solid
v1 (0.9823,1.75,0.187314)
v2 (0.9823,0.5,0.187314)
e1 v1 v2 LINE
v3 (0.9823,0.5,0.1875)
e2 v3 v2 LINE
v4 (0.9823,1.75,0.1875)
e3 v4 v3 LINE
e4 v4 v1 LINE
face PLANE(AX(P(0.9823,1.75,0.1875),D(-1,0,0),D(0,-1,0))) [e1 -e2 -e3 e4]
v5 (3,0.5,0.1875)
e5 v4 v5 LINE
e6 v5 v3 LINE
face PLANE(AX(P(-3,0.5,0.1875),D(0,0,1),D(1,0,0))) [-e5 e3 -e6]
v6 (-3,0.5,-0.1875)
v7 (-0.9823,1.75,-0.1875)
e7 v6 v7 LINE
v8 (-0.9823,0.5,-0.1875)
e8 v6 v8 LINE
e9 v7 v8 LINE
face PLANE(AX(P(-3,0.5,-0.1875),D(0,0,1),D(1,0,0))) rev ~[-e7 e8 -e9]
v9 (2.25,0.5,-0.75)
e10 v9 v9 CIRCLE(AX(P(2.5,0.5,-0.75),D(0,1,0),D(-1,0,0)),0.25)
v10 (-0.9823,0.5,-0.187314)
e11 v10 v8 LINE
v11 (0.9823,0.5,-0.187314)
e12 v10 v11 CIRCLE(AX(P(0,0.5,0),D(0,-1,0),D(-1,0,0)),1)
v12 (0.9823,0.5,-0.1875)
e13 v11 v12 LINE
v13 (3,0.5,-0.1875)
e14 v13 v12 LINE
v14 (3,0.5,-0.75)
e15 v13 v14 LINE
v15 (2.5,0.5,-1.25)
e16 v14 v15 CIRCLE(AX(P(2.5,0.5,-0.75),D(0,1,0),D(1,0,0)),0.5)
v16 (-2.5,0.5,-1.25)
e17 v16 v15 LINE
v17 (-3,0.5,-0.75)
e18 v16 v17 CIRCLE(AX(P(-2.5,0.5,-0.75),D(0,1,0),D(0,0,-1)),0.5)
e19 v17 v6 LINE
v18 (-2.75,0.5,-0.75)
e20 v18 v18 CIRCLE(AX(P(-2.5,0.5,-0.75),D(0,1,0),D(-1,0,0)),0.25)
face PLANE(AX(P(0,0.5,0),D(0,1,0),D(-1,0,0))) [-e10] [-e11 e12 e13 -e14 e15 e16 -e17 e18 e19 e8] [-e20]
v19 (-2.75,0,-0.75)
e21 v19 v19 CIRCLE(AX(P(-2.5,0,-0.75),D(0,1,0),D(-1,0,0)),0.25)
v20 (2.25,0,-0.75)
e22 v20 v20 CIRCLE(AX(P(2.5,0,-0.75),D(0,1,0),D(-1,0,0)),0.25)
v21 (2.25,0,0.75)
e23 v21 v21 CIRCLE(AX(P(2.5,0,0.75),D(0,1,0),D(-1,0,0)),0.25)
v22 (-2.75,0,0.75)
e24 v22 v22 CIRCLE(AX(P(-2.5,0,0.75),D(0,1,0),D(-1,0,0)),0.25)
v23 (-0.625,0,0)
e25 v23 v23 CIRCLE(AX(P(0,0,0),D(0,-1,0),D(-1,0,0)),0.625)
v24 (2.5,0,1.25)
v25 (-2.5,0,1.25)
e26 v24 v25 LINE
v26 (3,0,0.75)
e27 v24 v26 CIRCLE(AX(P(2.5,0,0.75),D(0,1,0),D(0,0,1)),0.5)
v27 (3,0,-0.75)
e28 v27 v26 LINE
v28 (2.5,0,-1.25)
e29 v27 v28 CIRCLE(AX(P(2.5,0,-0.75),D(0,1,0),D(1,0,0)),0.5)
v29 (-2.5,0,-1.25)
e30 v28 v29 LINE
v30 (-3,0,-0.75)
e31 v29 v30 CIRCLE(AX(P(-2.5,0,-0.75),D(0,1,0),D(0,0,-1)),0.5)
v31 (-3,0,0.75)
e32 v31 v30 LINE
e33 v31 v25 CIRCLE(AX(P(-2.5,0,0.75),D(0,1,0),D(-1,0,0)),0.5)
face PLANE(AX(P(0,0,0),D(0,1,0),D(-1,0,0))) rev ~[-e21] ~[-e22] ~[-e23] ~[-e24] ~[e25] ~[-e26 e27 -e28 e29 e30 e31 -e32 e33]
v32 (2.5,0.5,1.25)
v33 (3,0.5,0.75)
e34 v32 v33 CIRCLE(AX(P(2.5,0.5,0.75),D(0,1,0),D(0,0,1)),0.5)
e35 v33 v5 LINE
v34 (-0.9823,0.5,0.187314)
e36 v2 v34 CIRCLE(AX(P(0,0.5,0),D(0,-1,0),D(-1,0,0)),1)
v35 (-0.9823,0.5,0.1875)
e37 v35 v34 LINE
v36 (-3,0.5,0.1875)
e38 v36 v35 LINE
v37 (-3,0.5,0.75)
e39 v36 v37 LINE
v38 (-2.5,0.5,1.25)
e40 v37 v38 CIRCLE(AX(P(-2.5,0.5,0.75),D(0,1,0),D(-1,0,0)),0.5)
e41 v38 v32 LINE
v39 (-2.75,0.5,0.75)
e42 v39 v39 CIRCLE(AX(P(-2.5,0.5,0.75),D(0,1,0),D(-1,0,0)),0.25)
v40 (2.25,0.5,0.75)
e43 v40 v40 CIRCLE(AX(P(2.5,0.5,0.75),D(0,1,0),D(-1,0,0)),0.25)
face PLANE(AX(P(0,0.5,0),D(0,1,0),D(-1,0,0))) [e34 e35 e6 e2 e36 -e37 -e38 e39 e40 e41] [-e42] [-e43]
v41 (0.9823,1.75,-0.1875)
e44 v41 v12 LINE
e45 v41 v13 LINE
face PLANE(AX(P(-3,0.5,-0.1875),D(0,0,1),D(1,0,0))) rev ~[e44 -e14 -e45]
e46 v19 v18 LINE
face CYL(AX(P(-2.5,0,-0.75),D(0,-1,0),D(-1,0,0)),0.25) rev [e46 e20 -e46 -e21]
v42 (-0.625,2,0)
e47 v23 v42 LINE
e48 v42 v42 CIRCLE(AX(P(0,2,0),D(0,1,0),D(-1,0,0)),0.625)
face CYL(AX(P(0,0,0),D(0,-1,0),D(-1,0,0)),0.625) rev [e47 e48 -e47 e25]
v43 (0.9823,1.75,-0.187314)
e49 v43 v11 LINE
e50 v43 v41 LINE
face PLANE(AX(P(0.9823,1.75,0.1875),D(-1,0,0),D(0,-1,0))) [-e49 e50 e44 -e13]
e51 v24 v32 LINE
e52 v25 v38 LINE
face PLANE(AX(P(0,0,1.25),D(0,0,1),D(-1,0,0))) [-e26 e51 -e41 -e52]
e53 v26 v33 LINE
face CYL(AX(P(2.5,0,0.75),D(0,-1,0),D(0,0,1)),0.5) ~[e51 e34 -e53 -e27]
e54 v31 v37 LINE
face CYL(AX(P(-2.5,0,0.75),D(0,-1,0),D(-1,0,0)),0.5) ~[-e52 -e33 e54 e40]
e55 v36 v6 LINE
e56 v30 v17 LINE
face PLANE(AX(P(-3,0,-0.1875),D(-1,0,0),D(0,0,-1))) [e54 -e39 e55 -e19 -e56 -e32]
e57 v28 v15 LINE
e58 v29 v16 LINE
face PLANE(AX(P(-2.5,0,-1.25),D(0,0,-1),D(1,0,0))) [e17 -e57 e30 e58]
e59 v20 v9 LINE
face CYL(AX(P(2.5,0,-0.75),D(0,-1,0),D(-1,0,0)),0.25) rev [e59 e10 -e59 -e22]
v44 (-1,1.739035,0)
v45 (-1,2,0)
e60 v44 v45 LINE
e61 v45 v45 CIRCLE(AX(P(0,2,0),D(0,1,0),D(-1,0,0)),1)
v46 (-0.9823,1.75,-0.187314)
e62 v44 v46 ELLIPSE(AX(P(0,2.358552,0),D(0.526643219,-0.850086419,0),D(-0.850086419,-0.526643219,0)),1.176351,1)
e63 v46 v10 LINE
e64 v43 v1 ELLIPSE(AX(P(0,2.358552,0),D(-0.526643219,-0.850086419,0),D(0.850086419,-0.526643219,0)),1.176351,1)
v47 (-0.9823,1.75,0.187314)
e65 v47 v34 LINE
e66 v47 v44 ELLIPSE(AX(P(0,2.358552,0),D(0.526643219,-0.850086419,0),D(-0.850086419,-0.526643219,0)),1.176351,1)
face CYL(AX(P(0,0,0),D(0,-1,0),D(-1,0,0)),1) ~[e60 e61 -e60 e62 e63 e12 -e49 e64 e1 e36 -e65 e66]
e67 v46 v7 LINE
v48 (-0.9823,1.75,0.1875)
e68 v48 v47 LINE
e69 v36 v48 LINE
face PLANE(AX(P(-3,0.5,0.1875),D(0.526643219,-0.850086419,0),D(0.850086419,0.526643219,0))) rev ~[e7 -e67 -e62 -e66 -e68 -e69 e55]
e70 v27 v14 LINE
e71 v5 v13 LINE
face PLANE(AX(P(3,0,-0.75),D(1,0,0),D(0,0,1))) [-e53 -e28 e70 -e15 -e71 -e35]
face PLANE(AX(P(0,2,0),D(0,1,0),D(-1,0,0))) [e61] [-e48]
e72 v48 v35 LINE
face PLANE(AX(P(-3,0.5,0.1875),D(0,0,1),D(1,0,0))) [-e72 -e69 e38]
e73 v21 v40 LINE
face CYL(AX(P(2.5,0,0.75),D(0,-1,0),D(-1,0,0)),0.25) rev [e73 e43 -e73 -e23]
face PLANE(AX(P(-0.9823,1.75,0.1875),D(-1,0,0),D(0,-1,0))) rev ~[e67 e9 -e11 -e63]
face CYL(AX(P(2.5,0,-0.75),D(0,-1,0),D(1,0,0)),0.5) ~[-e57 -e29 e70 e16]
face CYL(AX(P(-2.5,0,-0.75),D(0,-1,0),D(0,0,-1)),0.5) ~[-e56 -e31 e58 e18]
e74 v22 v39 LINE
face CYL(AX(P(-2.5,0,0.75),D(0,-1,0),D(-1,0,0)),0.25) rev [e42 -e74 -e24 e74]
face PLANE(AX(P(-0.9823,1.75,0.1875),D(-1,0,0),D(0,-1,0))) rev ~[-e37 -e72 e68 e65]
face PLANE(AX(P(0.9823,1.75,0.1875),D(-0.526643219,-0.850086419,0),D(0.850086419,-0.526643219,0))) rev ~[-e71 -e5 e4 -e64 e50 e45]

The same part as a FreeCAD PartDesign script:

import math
import FreeCAD as App
import Part
import Sketcher
Q = App.Units.Quantity


def add_polygon(sketch, points):
    """Adds a closed chain of lines whose ends are joined by coincident constraints."""
    first, n = sketch.GeometryCount, len(points)
    for a, b in zip(points, points[1:] + points[:1]):
        sketch.addGeometry(Part.LineSegment(App.Vector(*a, 0), App.Vector(*b, 0)), False)
    for i in range(n):
        sketch.addConstraint(Sketcher.Constraint("Coincident", first + i, 2, first + (i + 1) % n, 1))

doc = App.newDocument("Part")
body = doc.addObject("PartDesign::Body", "Body")

sketch1 = body.newObject("Sketcher::SketchObject", "Sketch")
sketch1.AttachmentSupport = (doc.getObject("XZ_Plane"), [""])
sketch1.MapMode = "FlatFace"
sketch1.addGeometry([
    Part.ArcOfCircle(Part.Circle(App.Vector(-2.5, -0.75, 0), App.Vector(0, 0, 1), 0.5), math.radians(180), math.radians(270)),
    Part.LineSegment(App.Vector(-3, -0.75, 0), App.Vector(-3, 0.75, 0)),
    Part.ArcOfCircle(Part.Circle(App.Vector(-2.5, 0.75, 0), App.Vector(0, 0, 1), 0.5), math.radians(90), math.radians(180)),
    Part.LineSegment(App.Vector(-2.5, 1.25, 0), App.Vector(2.5, 1.25, 0)),
    Part.ArcOfCircle(Part.Circle(App.Vector(2.5, 0.75, 0), App.Vector(0, 0, 1), 0.5), math.radians(0), math.radians(90)),
    Part.LineSegment(App.Vector(3, 0.75, 0), App.Vector(3, -0.75, 0)),
    Part.ArcOfCircle(Part.Circle(App.Vector(2.5, -0.75, 0), App.Vector(0, 0, 1), 0.5), math.radians(-90), math.radians(0)),
    Part.LineSegment(App.Vector(2.5, -1.25, 0), App.Vector(-2.5, -1.25, 0)),
    Part.Circle(App.Vector(0, 0, 0), App.Vector(0, 0, 1), 1),
    Part.Circle(App.Vector(-2.5, -0.75, 0), App.Vector(0, 0, 1), 0.25),
    Part.Circle(App.Vector(2.5, -0.75, 0), App.Vector(0, 0, 1), 0.25),
    Part.Circle(App.Vector(-2.5, 0.75, 0), App.Vector(0, 0, 1), 0.25),
    Part.Circle(App.Vector(2.5, 0.75, 0), App.Vector(0, 0, 1), 0.25),
], False)
sketch1.addConstraint([
    Sketcher.Constraint("Tangent", 0, 1, 1, 1),
    Sketcher.Constraint("Tangent", 1, 2, 2, 2),
    Sketcher.Constraint("Tangent", 2, 1, 3, 1),
    Sketcher.Constraint("Tangent", 3, 2, 4, 2),
    Sketcher.Constraint("Tangent", 4, 1, 5, 1),
    Sketcher.Constraint("Tangent", 5, 2, 6, 2),
    Sketcher.Constraint("Tangent", 6, 1, 7, 1),
    Sketcher.Constraint("Tangent", 7, 2, 0, 2),
    Sketcher.Constraint("Vertical", 1),
    Sketcher.Constraint("Horizontal", 3),
    Sketcher.Constraint("Vertical", 5),
    Sketcher.Constraint("Horizontal", 7),
    Sketcher.Constraint("Coincident", 8, 3, -1, 1),
    Sketcher.Constraint("Coincident", 9, 3, 0, 3),
    Sketcher.Constraint("Coincident", 10, 3, 6, 3),
    Sketcher.Constraint("Coincident", 11, 3, 2, 3),
    Sketcher.Constraint("Coincident", 12, 3, 4, 3),
    Sketcher.Constraint("Equal", 0, 2),
    Sketcher.Constraint("Equal", 2, 4),
    Sketcher.Constraint("Equal", 4, 6),
    Sketcher.Constraint("Equal", 9, 10),
    Sketcher.Constraint("Equal", 10, 11),
    Sketcher.Constraint("Equal", 11, 12),
    Sketcher.Constraint("Symmetric", 0, 3, 4, 3, -1, 1),
    Sketcher.Constraint("Diameter", 8, 2.0),
    Sketcher.Constraint("Diameter", 9, 0.5),
    Sketcher.Constraint("Radius", 0, 0.5),
    Sketcher.Constraint("DistanceY", 0, 3, 2, 1, 2.0),
    Sketcher.Constraint("DistanceX", 0, 3, -1, 1, 2.5),
])
pad1 = body.newObject("PartDesign::Pad", "Pad")
pad1.Profile = sketch1
pad1.Length = 0.5
pad1.Reversed = True

sketch2 = body.newObject("Sketcher::SketchObject", "Sketch001")
sketch2.AttachmentSupport = (doc.getObject("XZ_Plane"), [""])
sketch2.MapMode = "FlatFace"
sketch2.addGeometry([
    Part.Circle(App.Vector(0, 0, 0), App.Vector(0, 0, 1), 1),
    Part.Circle(App.Vector(0, 0, 0), App.Vector(0, 0, 1), 0.6),
], False)
sketch2.addConstraint([
    Sketcher.Constraint("Coincident", 0, 3, -1, 1),
    Sketcher.Constraint("Coincident", 1, 3, -1, 1),
    Sketcher.Constraint("Diameter", 0, 2.0),
    Sketcher.Constraint("Diameter", 1, 1.25),
])
pad2 = body.newObject("PartDesign::Pad", "Pad001")
pad2.Profile = sketch2
pad2.Length = 2
pad2.Reversed = True

sketch3 = body.newObject("Sketcher::SketchObject", "Sketch002")
sketch3.AttachmentSupport = (doc.getObject("XY_Plane"), [""])
sketch3.MapMode = "FlatFace"
sketch3.AttachmentOffset = App.Placement(App.Vector(0, 0, 0.1875), App.Rotation())
add_polygon(sketch3, [(-1, 0.5), (-1, 1.8), (-3, 0.5)])
add_polygon(sketch3, [(3, 0.5), (1, 1.8), (1, 0.5)])
sketch3.addConstraint([
    Sketcher.Constraint("Vertical", 0),
    Sketcher.Constraint("Horizontal", 2),
    Sketcher.Constraint("Vertical", 4),
    Sketcher.Constraint("Horizontal", 5),
    Sketcher.Constraint("Symmetric", 0, 2, 3, 2, -2),
    Sketcher.Constraint("Symmetric", 1, 2, 5, 2, -2),
    Sketcher.Constraint("DistanceX", 1, 2, -1, 1, 3.0),
    Sketcher.Constraint("DistanceY", 0, 1, 0, 2, 1.25),
    Sketcher.Constraint("DistanceY", -1, 1, 1, 2, 0.5),
    Sketcher.Constraint("Angle", 1, Q("-148.221 deg")),
])
pad3 = body.newObject("PartDesign::Pad", "Pad002")
pad3.Profile = sketch3
pad3.Length = 0.375
pad3.Reversed = True

doc.recompute()
